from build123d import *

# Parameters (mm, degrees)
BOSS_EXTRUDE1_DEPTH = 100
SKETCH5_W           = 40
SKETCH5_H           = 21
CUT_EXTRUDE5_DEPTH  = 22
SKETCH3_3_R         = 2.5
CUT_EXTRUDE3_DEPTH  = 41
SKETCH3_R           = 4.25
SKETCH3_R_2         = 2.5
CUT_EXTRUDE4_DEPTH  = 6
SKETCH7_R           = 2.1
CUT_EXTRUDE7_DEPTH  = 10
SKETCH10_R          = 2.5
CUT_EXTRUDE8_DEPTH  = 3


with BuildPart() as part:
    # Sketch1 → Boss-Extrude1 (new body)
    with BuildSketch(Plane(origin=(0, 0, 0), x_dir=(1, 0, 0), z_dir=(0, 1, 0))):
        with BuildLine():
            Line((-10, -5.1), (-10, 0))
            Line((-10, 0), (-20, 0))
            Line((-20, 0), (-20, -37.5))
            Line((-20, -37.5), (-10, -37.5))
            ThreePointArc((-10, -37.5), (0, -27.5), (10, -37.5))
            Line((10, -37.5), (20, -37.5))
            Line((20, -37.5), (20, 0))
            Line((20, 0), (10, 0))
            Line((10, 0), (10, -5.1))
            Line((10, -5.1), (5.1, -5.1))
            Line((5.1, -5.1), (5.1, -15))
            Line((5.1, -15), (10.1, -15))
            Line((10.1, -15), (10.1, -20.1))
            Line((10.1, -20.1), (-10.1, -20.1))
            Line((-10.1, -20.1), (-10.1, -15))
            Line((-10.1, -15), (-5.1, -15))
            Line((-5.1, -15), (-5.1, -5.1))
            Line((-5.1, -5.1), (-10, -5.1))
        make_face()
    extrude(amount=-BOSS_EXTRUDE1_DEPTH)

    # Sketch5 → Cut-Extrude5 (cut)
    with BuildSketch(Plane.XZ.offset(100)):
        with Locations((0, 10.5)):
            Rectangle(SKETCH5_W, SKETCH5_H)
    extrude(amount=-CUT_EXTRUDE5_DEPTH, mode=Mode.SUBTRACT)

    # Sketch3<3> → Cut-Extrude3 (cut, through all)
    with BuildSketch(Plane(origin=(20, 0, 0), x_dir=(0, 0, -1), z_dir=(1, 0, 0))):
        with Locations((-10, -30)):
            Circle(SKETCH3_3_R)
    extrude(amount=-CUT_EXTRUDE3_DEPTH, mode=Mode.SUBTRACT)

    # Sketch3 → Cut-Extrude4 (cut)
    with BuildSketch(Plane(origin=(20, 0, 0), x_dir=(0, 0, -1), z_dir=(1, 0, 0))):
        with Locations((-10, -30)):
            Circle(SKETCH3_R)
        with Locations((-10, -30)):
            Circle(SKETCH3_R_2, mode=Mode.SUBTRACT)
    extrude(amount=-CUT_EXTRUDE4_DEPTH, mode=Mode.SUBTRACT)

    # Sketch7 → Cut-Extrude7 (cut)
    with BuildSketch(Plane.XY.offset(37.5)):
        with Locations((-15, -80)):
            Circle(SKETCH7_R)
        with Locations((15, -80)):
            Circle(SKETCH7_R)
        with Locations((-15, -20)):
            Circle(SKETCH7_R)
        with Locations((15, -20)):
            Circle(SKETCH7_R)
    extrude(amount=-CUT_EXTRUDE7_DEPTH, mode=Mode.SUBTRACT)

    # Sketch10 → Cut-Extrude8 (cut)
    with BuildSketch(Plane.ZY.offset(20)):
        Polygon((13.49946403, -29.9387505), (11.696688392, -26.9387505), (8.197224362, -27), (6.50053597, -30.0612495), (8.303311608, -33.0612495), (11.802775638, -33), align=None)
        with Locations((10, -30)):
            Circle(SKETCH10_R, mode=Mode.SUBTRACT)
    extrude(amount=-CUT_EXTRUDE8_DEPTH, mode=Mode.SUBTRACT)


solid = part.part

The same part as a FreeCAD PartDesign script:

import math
import FreeCAD as App
import Part
import Sketcher

V = App.Vector


def add_polygon(sketch, points):
    """Adds a closed chain of lines whose ends are joined by coincident constraints."""
    first, n = sketch.GeometryCount, len(points)
    for a, b in zip(points, points[1:] + points[:1]):
        sketch.addGeometry(Part.LineSegment(App.Vector(*a, 0), App.Vector(*b, 0)), False)
    for i in range(n):
        sketch.addConstraint(Sketcher.Constraint("Coincident", first + i, 2, first + (i + 1) % n, 1))

doc = App.newDocument("Part")
body = doc.addObject("PartDesign::Body", "Body")

sketch1 = body.newObject("Sketcher::SketchObject", "Sketch")
sketch1.AttachmentSupport = (doc.getObject("XZ_Plane"), [""])
sketch1.MapMode = "FlatFace"
sketch1.addGeometry([
    Part.LineSegment(V(-10, 5.1, 0), V(-10, 0, 0)),
    Part.LineSegment(V(-10, 0, 0), V(-20, 0, 0)),
    Part.LineSegment(V(-20, 0, 0), V(-20, 37.5, 0)),
    Part.LineSegment(V(-20, 37.5, 0), V(-10, 37.5, 0)),
    Part.ArcOfCircle(Part.Circle(V(0, 37.5, 0), V(0, 0, 1), 10), math.radians(180), math.radians(360)),
    Part.LineSegment(V(10, 37.5, 0), V(20, 37.5, 0)),
    Part.LineSegment(V(20, 37.5, 0), V(20, 0, 0)),
    Part.LineSegment(V(20, 0, 0), V(10, 0, 0)),
    Part.LineSegment(V(10, 0, 0), V(10, 5.1, 0)),
    Part.LineSegment(V(10, 5.1, 0), V(5.1, 5.1, 0)),
    Part.LineSegment(V(5.1, 5.1, 0), V(5.1, 15, 0)),
    Part.LineSegment(V(5.1, 15, 0), V(10.1, 15, 0)),
    Part.LineSegment(V(10.1, 15, 0), V(10.1, 20.1, 0)),
    Part.LineSegment(V(10.1, 20.1, 0), V(-10.1, 20.1, 0)),
    Part.LineSegment(V(-10.1, 20.1, 0), V(-10.1, 15, 0)),
    Part.LineSegment(V(-10.1, 15, 0), V(-5.1, 15, 0)),
    Part.LineSegment(V(-5.1, 15, 0), V(-5.1, 5.1, 0)),
    Part.LineSegment(V(-5.1, 5.1, 0), V(-10, 5.1, 0)),
], False)
sketch1.addConstraint([
    Sketcher.Constraint("Coincident", 0, 2, 1, 1),
    Sketcher.Constraint("Coincident", 1, 2, 2, 1),
    Sketcher.Constraint("Coincident", 2, 2, 3, 1),
    Sketcher.Constraint("Coincident", 3, 2, 4, 1),
    Sketcher.Constraint("Coincident", 4, 2, 5, 1),
    Sketcher.Constraint("Coincident", 5, 2, 6, 1),
    Sketcher.Constraint("Coincident", 6, 2, 7, 1),
    Sketcher.Constraint("Coincident", 7, 2, 8, 1),
    Sketcher.Constraint("Coincident", 8, 2, 9, 1),
    Sketcher.Constraint("Coincident", 9, 2, 10, 1),
    Sketcher.Constraint("Coincident", 10, 2, 11, 1),
    Sketcher.Constraint("Coincident", 11, 2, 12, 1),
    Sketcher.Constraint("Coincident", 12, 2, 13, 1),
    Sketcher.Constraint("Coincident", 13, 2, 14, 1),
    Sketcher.Constraint("Coincident", 14, 2, 15, 1),
    Sketcher.Constraint("Coincident", 15, 2, 16, 1),
    Sketcher.Constraint("Coincident", 16, 2, 17, 1),
    Sketcher.Constraint("Coincident", 17, 2, 0, 1),
    Sketcher.Constraint("Vertical", 0),
    Sketcher.Constraint("Horizontal", 1),
    Sketcher.Constraint("Vertical", 2),
    Sketcher.Constraint("Horizontal", 3),
    Sketcher.Constraint("Horizontal", 5),
    Sketcher.Constraint("Vertical", 6),
    Sketcher.Constraint("Horizontal", 7),
    Sketcher.Constraint("Vertical", 8),
    Sketcher.Constraint("Horizontal", 9),
    Sketcher.Constraint("Vertical", 10),
    Sketcher.Constraint("Horizontal", 11),
    Sketcher.Constraint("Vertical", 12),
    Sketcher.Constraint("Horizontal", 13),
    Sketcher.Constraint("Vertical", 14),
    Sketcher.Constraint("Horizontal", 15),
    Sketcher.Constraint("Vertical", 16),
    Sketcher.Constraint("Horizontal", 17),
    Sketcher.Constraint("Symmetric", 1, 2, 6, 2, -1, 1),
    Sketcher.Constraint("Symmetric", 3, 2, 4, 2, -2),
    Sketcher.Constraint("Symmetric", 0, 2, 7, 2, -2),
    Sketcher.Constraint("Symmetric", 11, 2, 14, 2, -2),
    Sketcher.Constraint("Symmetric", 9, 2, 16, 2, -2),
    Sketcher.Constraint("Horizontal", 4, 3, 2, 2),
    Sketcher.Constraint("Vertical", 0, 2, 3, 2),
    Sketcher.Constraint("Equal", 8, 12),
    Sketcher.Constraint("Radius", 4, 10.0),
    Sketcher.Constraint("DistanceX", 1, 2, 1, 1, 10.0),
    Sketcher.Constraint("DistanceX", 11, 1, 11, 2, 5.0),
    Sketcher.Constraint("DistanceX", 9, 2, 9, 1, 4.9),
    Sketcher.Constraint("DistanceY", 0, 2, 0, 1, 5.1),
    Sketcher.Constraint("DistanceY", 2, 1, 2, 2, 37.5),
    Sketcher.Constraint("DistanceY", 10, 1, 10, 2, 9.9),
])
pad1 = body.newObject("PartDesign::Pad", "Pad")
pad1.Profile = sketch1
pad1.Length = 100

sketch2 = body.newObject("Sketcher::SketchObject", "Sketch001")
sketch2.AttachmentSupport = (doc.getObject("XZ_Plane"), [""])
sketch2.MapMode = "FlatFace"
sketch2.AttachmentOffset = App.Placement(V(0, 0, 100), App.Rotation())
add_polygon(sketch2, [(-20, 21), (-20, 0), (20, 0), (20, 21)])
sketch2.addConstraint([
    Sketcher.Constraint("Vertical", 0),
    Sketcher.Constraint("Horizontal", 1),
    Sketcher.Constraint("Vertical", 2),
    Sketcher.Constraint("Horizontal", 3),
    Sketcher.Constraint("Symmetric", 0, 2, 1, 2, -1, 1),
    Sketcher.Constraint("DistanceX", 1, 1, 1, 2, 40.0),
    Sketcher.Constraint("DistanceY", 0, 2, 0, 1, 21.0),
])
pocket1 = body.newObject("PartDesign::Pocket", "Pocket")
pocket1.Profile = sketch2
pocket1.Length = 22

sketch3 = body.newObject("Sketcher::SketchObject", "Sketch002")
sketch3.AttachmentSupport = (doc.getObject("YZ_Plane"), [""])
sketch3.MapMode = "FlatFace"
sketch3.AttachmentOffset = App.Placement(V(0, 0, 20), App.Rotation())
sketch3.addGeometry(Part.Circle(V(-30, 10, 0), V(0, 0, 1), 2.5), False)
sketch3.addConstraint([
    Sketcher.Constraint("Diameter", 0, 5.0),
    Sketcher.Constraint("DistanceX", 0, 3, -1, 1, 30.0),
    Sketcher.Constraint("DistanceY", -1, 1, 0, 3, 10.0),
])
pocket2 = body.newObject("PartDesign::Pocket", "Pocket001")
pocket2.Profile = sketch3
pocket2.Type = "ThroughAll"

sketch4 = body.newObject("Sketcher::SketchObject", "Sketch003")
sketch4.AttachmentSupport = (doc.getObject("YZ_Plane"), [""])
sketch4.MapMode = "FlatFace"
sketch4.AttachmentOffset = App.Placement(V(0, 0, 20), App.Rotation())
sketch4.addGeometry([
    Part.Circle(V(-30, 10, 0), V(0, 0, 1), 4.2),
    Part.Circle(V(-30, 10, 0), V(0, 0, 1), 2.5),
], False)
sketch4.addConstraint([
    Sketcher.Constraint("Coincident", 1, 3, 0, 3),
    Sketcher.Constraint("Diameter", 1, 5.0),
    Sketcher.Constraint("Diameter", 0, 8.5),
    Sketcher.Constraint("DistanceX", 0, 3, -1, 1, 30.0),
    Sketcher.Constraint("DistanceY", -1, 1, 0, 3, 10.0),
])
pocket3 = body.newObject("PartDesign::Pocket", "Pocket002")
pocket3.Profile = sketch4
pocket3.Length = 6

sketch5 = body.newObject("Sketcher::SketchObject", "Sketch004")
sketch5.AttachmentSupport = (doc.getObject("XY_Plane"), [""])
sketch5.MapMode = "FlatFace"
sketch5.AttachmentOffset = App.Placement(V(0, 0, 37.5), App.Rotation())
sketch5.addGeometry([
    Part.Circle(V(-15, -80, 0), V(0, 0, 1), 2.1),
    Part.Circle(V(15, -80, 0), V(0, 0, 1), 2.1),
    Part.Circle(V(-15, -20, 0), V(0, 0, 1), 2.1),
    Part.Circle(V(15, -20, 0), V(0, 0, 1), 2.1),
], False)
sketch5.addConstraint([
    Sketcher.Constraint("Equal", 0, 1),
    Sketcher.Constraint("Equal", 1, 2),
    Sketcher.Constraint("Equal", 2, 3),
    Sketcher.Constraint("Symmetric", 0, 3, 1, 3, -2),
    Sketcher.Constraint("Symmetric", 2, 3, 3, 3, -2),
    Sketcher.Constraint("Vertical", 0, 3, 2, 3),
    Sketcher.Constraint("Diameter", 0, 4.2),
    Sketcher.Constraint("DistanceX", 0, 3, -1, 1, 15.0),
    Sketcher.Constraint("DistanceY", 0, 3, -1, 1, 80.0),
    Sketcher.Constraint("DistanceY", 2, 3, -1, 1, 20.0),
])
pocket4 = body.newObject("PartDesign::Pocket", "Pocket003")
pocket4.Profile = sketch5
pocket4.Length = 10

sketch6 = body.newObject("Sketcher::SketchObject", "Sketch005")
sketch6.AttachmentSupport = (doc.getObject("YZ_Plane"), [""])
sketch6.MapMode = "FlatFace"
sketch6.AttachmentOffset = App.Placement(V(0, 0, -20), App.Rotation())
add_polygon(sketch6, [(-29.9, 13.5), (-26.9, 11.7), (-27, 8.2), (-30.1, 6.5), (-33.1, 8.3), (-33, 11.8)])
sketch6.addGeometry(Part.Circle(V(-30, 10, 0), V(0, 0, 1), 2.5), False)
sketch6.addConstraint([
    Sketcher.Constraint("Parallel", 0, 3),
    Sketcher.Constraint("Parallel", 1, 4),
    Sketcher.Constraint("Parallel", 2, 5),
    Sketcher.Constraint("Equal", 0, 1),
    Sketcher.Constraint("Equal", 1, 2),
    Sketcher.Constraint("Equal", 2, 3),
    Sketcher.Constraint("Diameter", 6, 5.0),
    Sketcher.Constraint("DistanceX", 6, 3, -1, 1, 30.0),
    Sketcher.Constraint("DistanceY", -1, 1, 6, 3, 10.0),
    Sketcher.Constraint("DistanceX", 1, 2, -1, 1, 27.0),
    Sketcher.Constraint("DistanceX", 4, 2, -1, 1, 33.0),
    Sketcher.Constraint("DistanceX", 3, 2, 2, 2, 3.0),
    Sketcher.Constraint("Distance", 0, 3.5),
    Sketcher.Constraint("DistanceX", 2, 2, 0, 2, 3.122499),
    Sketcher.Constraint("DistanceY", -1, 1, 0, 2, 11.696688),
])
pocket5 = body.newObject("PartDesign::Pocket", "Pocket004")
pocket5.Profile = sketch6
pocket5.Length = 3
pocket5.Reversed = True

doc.recompute()
